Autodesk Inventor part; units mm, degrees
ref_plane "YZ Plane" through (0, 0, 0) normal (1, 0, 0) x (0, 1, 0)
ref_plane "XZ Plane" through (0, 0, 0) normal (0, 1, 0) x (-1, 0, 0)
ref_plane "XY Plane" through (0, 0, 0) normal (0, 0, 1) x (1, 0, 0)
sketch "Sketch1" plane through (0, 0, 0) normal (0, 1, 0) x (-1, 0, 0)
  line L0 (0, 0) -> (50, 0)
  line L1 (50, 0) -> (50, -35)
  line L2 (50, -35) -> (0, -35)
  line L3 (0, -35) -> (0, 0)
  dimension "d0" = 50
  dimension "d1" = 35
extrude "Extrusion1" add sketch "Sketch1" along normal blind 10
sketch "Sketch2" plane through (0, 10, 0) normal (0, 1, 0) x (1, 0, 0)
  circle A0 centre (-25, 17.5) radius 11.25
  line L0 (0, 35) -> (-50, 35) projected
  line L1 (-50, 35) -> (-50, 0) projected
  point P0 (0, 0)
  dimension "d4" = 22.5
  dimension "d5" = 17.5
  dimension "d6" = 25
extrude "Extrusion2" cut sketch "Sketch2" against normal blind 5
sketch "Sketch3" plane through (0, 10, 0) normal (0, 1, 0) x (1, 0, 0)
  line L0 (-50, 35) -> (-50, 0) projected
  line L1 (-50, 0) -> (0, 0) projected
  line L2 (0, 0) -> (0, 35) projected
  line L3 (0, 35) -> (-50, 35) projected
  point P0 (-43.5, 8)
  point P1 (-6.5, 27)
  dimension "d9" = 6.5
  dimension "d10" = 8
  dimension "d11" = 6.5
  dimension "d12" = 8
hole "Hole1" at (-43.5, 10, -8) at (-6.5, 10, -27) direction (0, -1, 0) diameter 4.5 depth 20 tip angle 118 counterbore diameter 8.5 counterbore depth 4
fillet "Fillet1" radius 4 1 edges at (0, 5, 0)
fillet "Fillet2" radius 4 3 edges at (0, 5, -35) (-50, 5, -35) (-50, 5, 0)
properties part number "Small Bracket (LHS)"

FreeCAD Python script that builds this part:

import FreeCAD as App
import Part
import Sketcher

V = App.Vector


def edges_at(feature, points):
    """Names of the edges that pass closest to the given points."""
    edges = feature.Shape.Edges
    near = lambda p: min(range(len(edges)), key=lambda i: edges[i].distToShape(Part.Vertex(*p))[0])
    return sorted({f"Edge{near(p) + 1}" for p in points})


def add_polygon(sketch, points):
    """Adds a closed chain of lines whose ends are joined by coincident constraints."""
    first, n = sketch.GeometryCount, len(points)
    for a, b in zip(points, points[1:] + points[:1]):
        sketch.addGeometry(Part.LineSegment(App.Vector(*a, 0), App.Vector(*b, 0)), False)
    for i in range(n):
        sketch.addConstraint(Sketcher.Constraint("Coincident", first + i, 2, first + (i + 1) % n, 1))

doc = App.newDocument("Part")
body = doc.addObject("PartDesign::Body", "Body")

sketch1 = body.newObject("Sketcher::SketchObject", "Sketch")
sketch1.AttachmentSupport = (doc.getObject("XZ_Plane"), [""])
sketch1.MapMode = "FlatFace"
add_polygon(sketch1, [(-50, 0), (0, 0), (0, -35), (-50, -35)])
sketch1.addConstraint([
    Sketcher.Constraint("Horizontal", 0),
    Sketcher.Constraint("Vertical", 1),
    Sketcher.Constraint("Horizontal", 2),
    Sketcher.Constraint("Vertical", 3),
    Sketcher.Constraint("Coincident", 0, 2, -1, 1),
    Sketcher.Constraint("DistanceX", 0, 1, 0, 2, 50.0),
    Sketcher.Constraint("DistanceY", 1, 2, 1, 1, 35.0),
])
pad1 = body.newObject("PartDesign::Pad", "Pad")
pad1.Profile = sketch1
pad1.Length = 10
pad1.Reversed = True

sketch2 = body.newObject("Sketcher::SketchObject", "Sketch001")
sketch2.AttachmentSupport = (doc.getObject("XZ_Plane"), [""])
sketch2.MapMode = "FlatFace"
sketch2.AttachmentOffset = App.Placement(V(0, 0, -10), App.Rotation())
sketch2.addGeometry(Part.Circle(V(-25, -17.5, 0), V(0, 0, 1), 11.25), False)
sketch2.addConstraint([
    Sketcher.Constraint("Diameter", 0, 22.5),
    Sketcher.Constraint("DistanceX", 0, 3, -1, 1, 25.0),
    Sketcher.Constraint("DistanceY", 0, 3, -1, 1, 17.5),
])
pocket1 = body.newObject("PartDesign::Pocket", "Pocket")
pocket1.Profile = sketch2
pocket1.Length = 5
pocket1.Reversed = True

sketch3 = body.newObject("Sketcher::SketchObject", "Sketch002")
sketch3.AttachmentSupport = (doc.getObject("XZ_Plane"), [""])
sketch3.MapMode = "FlatFace"
sketch3.AttachmentOffset = App.Placement(V(0, 0, -10), App.Rotation())
sketch3.addGeometry([
    Part.Circle(V(-43.5, -8, 0), V(0, 0, 1), 2.25),
    Part.Circle(V(-6.5, -27, 0), V(0, 0, 1), 2.25),
], False)
sketch3.addConstraint([
    Sketcher.Constraint("Equal", 0, 1),
    Sketcher.Constraint("Diameter", 0, 4.5),
    Sketcher.Constraint("DistanceY", 0, 3, -1, 1, 8.0),
    Sketcher.Constraint("DistanceY", 1, 3, -1, 1, 27.0),
    Sketcher.Constraint("DistanceX", 0, 3, 1, 3, 37.0),
    Sketcher.Constraint("DistanceX", 0, 3, -1, 1, 43.5),
])
doc.recompute()
hole = body.newObject("PartDesign::Hole", "Hole")
hole.Profile = sketch3
hole.ThreadType = "None"
hole.Diameter = 4.5
hole.DepthType = "Dimension"
hole.Depth = 20
hole.DrillPoint = "Angled"
hole.DrillPointAngle = 118
hole.HoleCutType = "Counterbore"
hole.HoleCutDiameter = 8.5
hole.HoleCutDepth = 4
hole.Reversed = True
doc.recompute()

fillet = body.newObject("PartDesign::Fillet", "Fillet")
fillet.Base = (hole, edges_at(hole, [(0, 5, 0)]))
fillet.Radius = 4
doc.recompute()

fillet2 = body.newObject("PartDesign::Fillet", "Fillet001")
fillet2.Base = (fillet, edges_at(fillet, [(0, 5, -35), (-50, 5, -35), (-50, 5, 0)]))
fillet2.Radius = 4

doc.recompute()
